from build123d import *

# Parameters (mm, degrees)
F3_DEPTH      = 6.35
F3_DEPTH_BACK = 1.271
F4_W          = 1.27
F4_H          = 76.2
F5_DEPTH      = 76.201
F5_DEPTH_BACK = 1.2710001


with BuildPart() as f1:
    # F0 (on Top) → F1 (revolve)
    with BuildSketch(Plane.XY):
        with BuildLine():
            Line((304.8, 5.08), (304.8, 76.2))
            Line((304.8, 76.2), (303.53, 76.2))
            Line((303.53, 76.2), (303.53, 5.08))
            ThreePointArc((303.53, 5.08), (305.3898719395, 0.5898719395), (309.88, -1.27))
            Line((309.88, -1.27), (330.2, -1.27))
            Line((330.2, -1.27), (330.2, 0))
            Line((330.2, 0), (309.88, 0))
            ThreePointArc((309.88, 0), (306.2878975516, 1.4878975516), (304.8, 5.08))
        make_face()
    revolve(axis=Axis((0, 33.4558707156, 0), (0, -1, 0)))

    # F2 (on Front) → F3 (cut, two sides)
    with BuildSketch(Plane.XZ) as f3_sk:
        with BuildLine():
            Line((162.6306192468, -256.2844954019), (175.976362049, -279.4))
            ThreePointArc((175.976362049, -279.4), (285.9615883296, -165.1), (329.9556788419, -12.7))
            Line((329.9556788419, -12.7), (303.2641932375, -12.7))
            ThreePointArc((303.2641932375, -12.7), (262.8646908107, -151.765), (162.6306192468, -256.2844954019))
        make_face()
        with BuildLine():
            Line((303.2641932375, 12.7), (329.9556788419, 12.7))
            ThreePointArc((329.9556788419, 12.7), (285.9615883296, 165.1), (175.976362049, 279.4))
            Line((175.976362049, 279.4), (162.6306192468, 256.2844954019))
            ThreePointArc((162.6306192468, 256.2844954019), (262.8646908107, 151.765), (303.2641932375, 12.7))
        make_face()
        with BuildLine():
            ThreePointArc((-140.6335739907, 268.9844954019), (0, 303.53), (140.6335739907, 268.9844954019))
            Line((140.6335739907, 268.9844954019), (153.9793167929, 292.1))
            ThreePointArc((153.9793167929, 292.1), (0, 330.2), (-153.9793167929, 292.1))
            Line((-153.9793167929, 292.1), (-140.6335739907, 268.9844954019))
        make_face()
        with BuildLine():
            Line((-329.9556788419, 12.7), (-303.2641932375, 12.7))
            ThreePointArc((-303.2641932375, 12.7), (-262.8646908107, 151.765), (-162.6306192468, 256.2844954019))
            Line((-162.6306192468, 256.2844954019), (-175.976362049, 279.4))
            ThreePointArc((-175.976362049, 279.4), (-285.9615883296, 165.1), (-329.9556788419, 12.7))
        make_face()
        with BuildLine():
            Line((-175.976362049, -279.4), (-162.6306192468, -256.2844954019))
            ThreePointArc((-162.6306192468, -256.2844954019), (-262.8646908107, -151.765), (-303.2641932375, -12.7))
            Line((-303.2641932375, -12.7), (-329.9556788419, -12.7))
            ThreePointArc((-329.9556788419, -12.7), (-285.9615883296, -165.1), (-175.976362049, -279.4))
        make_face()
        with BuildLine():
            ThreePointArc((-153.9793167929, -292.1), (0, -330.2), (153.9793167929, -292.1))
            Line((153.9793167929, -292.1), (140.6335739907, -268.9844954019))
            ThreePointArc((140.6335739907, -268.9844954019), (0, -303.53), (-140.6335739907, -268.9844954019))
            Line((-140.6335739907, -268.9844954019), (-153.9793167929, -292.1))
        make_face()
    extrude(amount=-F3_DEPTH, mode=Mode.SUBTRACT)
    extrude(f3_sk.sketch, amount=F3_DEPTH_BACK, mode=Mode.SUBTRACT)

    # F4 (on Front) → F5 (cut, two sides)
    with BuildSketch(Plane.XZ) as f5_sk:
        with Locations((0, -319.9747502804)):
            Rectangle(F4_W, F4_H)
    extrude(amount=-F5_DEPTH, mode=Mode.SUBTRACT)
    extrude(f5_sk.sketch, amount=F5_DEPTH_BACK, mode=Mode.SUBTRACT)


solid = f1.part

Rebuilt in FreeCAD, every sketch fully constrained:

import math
import FreeCAD as App
import Part
import Sketcher
from FreeCAD import Vector
Q = App.Units.Quantity

doc = App.newDocument("Part")
body = doc.addObject("PartDesign::Body", "Body")

sketch1 = body.newObject("Sketcher::SketchObject", "Sketch")
sketch1.AttachmentSupport = (doc.getObject("XY_Plane"), [""])
sketch1.MapMode = "FlatFace"
sketch1.addGeometry(Part.LineSegment(Vector(304.8, 5.1, 0), Vector(304.8, 76.2, 0)), False)
sketch1.addGeometry(Part.LineSegment(Vector(304.8, 76.2, 0), Vector(303.5, 76.2, 0)), False)
sketch1.addGeometry(Part.LineSegment(Vector(303.5, 76.2, 0), Vector(303.5, 5.1, 0)), False)
sketch1.addGeometry(Part.ArcOfCircle(Part.Circle(Vector(309.9, 5.1, 0), Vector(0, 0, 1), 6.3), math.radians(180), math.radians(270)), False)
sketch1.addGeometry(Part.LineSegment(Vector(309.9, -1.3, 0), Vector(330.2, -1.3, 0)), False)
sketch1.addGeometry(Part.LineSegment(Vector(330.2, -1.3, 0), Vector(330.2, 0, 0)), False)
sketch1.addGeometry(Part.LineSegment(Vector(330.2, 0, 0), Vector(309.9, 0, 0)), False)
sketch1.addGeometry(Part.ArcOfCircle(Part.Circle(Vector(309.9, 5.1, 0), Vector(0, 0, 1), 5.1), math.radians(180), math.radians(270)), False)
sketch1.addConstraint(Sketcher.Constraint("Coincident", 0, 2, 1, 1))
sketch1.addConstraint(Sketcher.Constraint("Coincident", 1, 2, 2, 1))
sketch1.addConstraint(Sketcher.Constraint("Tangent", 2, 2, 3, 1))
sketch1.addConstraint(Sketcher.Constraint("Tangent", 3, 2, 4, 1))
sketch1.addConstraint(Sketcher.Constraint("Coincident", 4, 2, 5, 1))
sketch1.addConstraint(Sketcher.Constraint("Coincident", 5, 2, 6, 1))
sketch1.addConstraint(Sketcher.Constraint("Tangent", 6, 2, 7, 2))
sketch1.addConstraint(Sketcher.Constraint("Tangent", 7, 1, 0, 1))
sketch1.addConstraint(Sketcher.Constraint("Vertical", 0))
sketch1.addConstraint(Sketcher.Constraint("Horizontal", 1))
sketch1.addConstraint(Sketcher.Constraint("Vertical", 2))
sketch1.addConstraint(Sketcher.Constraint("Horizontal", 4))
sketch1.addConstraint(Sketcher.Constraint("Vertical", 5))
sketch1.addConstraint(Sketcher.Constraint("Horizontal", 6))
sketch1.addConstraint(Sketcher.Constraint("Coincident", 7, 3, 3, 3))
sketch1.addConstraint(Sketcher.Constraint("PointOnObject", 5, 2, -1))
sketch1.addConstraint(Sketcher.Constraint("Radius", 7, Q("0.2 in")))
sketch1.addConstraint(Sketcher.Constraint("Radius", 3, Q("0.25 in")))
sketch1.addConstraint(Sketcher.Constraint("DistanceX", 4, 1, 4, 2, Q("0.8 in")))
sketch1.addConstraint(Sketcher.Constraint("DistanceY", 0, 1, 0, 2, Q("2.8 in")))
sketch1.addConstraint(Sketcher.Constraint("DistanceX", -1, 1, 0, 2, Q("12 in")))
revolution = body.newObject("PartDesign::Revolution", "Revolution")
revolution.Profile = sketch1
revolution.ReferenceAxis = (sketch1, ["V_Axis"])
revolution.Angle = 360

sketch2 = body.newObject("Sketcher::SketchObject", "Sketch001")
sketch2.AttachmentSupport = (doc.getObject("XZ_Plane"), [""])
sketch2.MapMode = "FlatFace"
sketch2.addGeometry(Part.LineSegment(Vector(163, -256, 0), Vector(176, -279, 0)), False)
sketch2.addGeometry(Part.ArcOfCircle(Part.Circle(Vector(0, 0, 0), Vector(0, 0, 1), 330), math.radians(-58), math.radians(-2)), False)
sketch2.addGeometry(Part.LineSegment(Vector(330, -13, 0), Vector(303, -13, 0)), False)
sketch2.addGeometry(Part.ArcOfCircle(Part.Circle(Vector(0, 0, 0), Vector(0, 0, 1), 304), math.radians(-58), math.radians(-2)), False)
sketch2.addGeometry(Part.LineSegment(Vector(303, 13, 0), Vector(330, 13, 0)), False)
sketch2.addGeometry(Part.ArcOfCircle(Part.Circle(Vector(0, 0, 0), Vector(0, 0, 1), 330), math.radians(2), math.radians(58)), False)
sketch2.addGeometry(Part.LineSegment(Vector(176, 279, 0), Vector(163, 256, 0)), False)
sketch2.addGeometry(Part.ArcOfCircle(Part.Circle(Vector(0, 0, 0), Vector(0, 0, 1), 304), math.radians(2), math.radians(58)), False)
sketch2.addGeometry(Part.ArcOfCircle(Part.Circle(Vector(0, 0, 0), Vector(0, 0, 1), 304), math.radians(62), math.radians(118)), False)
sketch2.addGeometry(Part.LineSegment(Vector(141, 269, 0), Vector(154, 292, 0)), False)
sketch2.addGeometry(Part.ArcOfCircle(Part.Circle(Vector(0, 0, 0), Vector(0, 0, 1), 330), math.radians(62), math.radians(118)), False)
sketch2.addGeometry(Part.LineSegment(Vector(-154, 292, 0), Vector(-141, 269, 0)), False)
sketch2.addGeometry(Part.LineSegment(Vector(-330, 13, 0), Vector(-303, 13, 0)), False)
sketch2.addGeometry(Part.ArcOfCircle(Part.Circle(Vector(0, 0, 0), Vector(0, 0, 1), 304), math.radians(122), math.radians(178)), False)
sketch2.addGeometry(Part.LineSegment(Vector(-163, 256, 0), Vector(-176, 279, 0)), False)
sketch2.addGeometry(Part.ArcOfCircle(Part.Circle(Vector(0, 0, 0), Vector(0, 0, 1), 330), math.radians(122), math.radians(178)), False)
sketch2.addGeometry(Part.LineSegment(Vector(-176, -279, 0), Vector(-163, -256, 0)), False)
sketch2.addGeometry(Part.ArcOfCircle(Part.Circle(Vector(0, 0, 0), Vector(0, 0, 1), 304), math.radians(-178), math.radians(-122)), False)
sketch2.addGeometry(Part.LineSegment(Vector(-303, -13, 0), Vector(-330, -13, 0)), False)
sketch2.addGeometry(Part.ArcOfCircle(Part.Circle(Vector(0, 0, 0), Vector(0, 0, 1), 330), math.radians(-178), math.radians(-122)), False)
sketch2.addGeometry(Part.ArcOfCircle(Part.Circle(Vector(0, 0, 0), Vector(0, 0, 1), 330), math.radians(-118), math.radians(-62)), False)
sketch2.addGeometry(Part.LineSegment(Vector(154, -292, 0), Vector(141, -269, 0)), False)
sketch2.addGeometry(Part.ArcOfCircle(Part.Circle(Vector(0, 0, 0), Vector(0, 0, 1), 304), math.radians(-118), math.radians(-62)), False)
sketch2.addGeometry(Part.LineSegment(Vector(-141, -269, 0), Vector(-154, -292, 0)), False)
sketch2.addConstraint(Sketcher.Constraint("Coincident", 0, 2, 1, 1))
sketch2.addConstraint(Sketcher.Constraint("Coincident", 1, 2, 2, 1))
sketch2.addConstraint(Sketcher.Constraint("Coincident", 2, 2, 3, 2))
sketch2.addConstraint(Sketcher.Constraint("Coincident", 3, 1, 0, 1))
sketch2.addConstraint(Sketcher.Constraint("Coincident", 4, 2, 5, 1))
sketch2.addConstraint(Sketcher.Constraint("Coincident", 5, 2, 6, 1))
sketch2.addConstraint(Sketcher.Constraint("Coincident", 6, 2, 7, 2))
sketch2.addConstraint(Sketcher.Constraint("Coincident", 7, 1, 4, 1))
sketch2.addConstraint(Sketcher.Constraint("Coincident", 8, 1, 9, 1))
sketch2.addConstraint(Sketcher.Constraint("Coincident", 9, 2, 10, 1))
sketch2.addConstraint(Sketcher.Constraint("Coincident", 10, 2, 11, 1))
sketch2.addConstraint(Sketcher.Constraint("Coincident", 11, 2, 8, 2))
sketch2.addConstraint(Sketcher.Constraint("Coincident", 12, 2, 13, 2))
sketch2.addConstraint(Sketcher.Constraint("Coincident", 13, 1, 14, 1))
sketch2.addConstraint(Sketcher.Constraint("Coincident", 14, 2, 15, 1))
sketch2.addConstraint(Sketcher.Constraint("Coincident", 15, 2, 12, 1))
sketch2.addConstraint(Sketcher.Constraint("Coincident", 16, 2, 17, 2))
sketch2.addConstraint(Sketcher.Constraint("Coincident", 17, 1, 18, 1))
sketch2.addConstraint(Sketcher.Constraint("Coincident", 18, 2, 19, 1))
sketch2.addConstraint(Sketcher.Constraint("Coincident", 19, 2, 16, 1))
sketch2.addConstraint(Sketcher.Constraint("Coincident", 20, 2, 21, 1))
sketch2.addConstraint(Sketcher.Constraint("Coincident", 21, 2, 22, 2))
sketch2.addConstraint(Sketcher.Constraint("Coincident", 22, 1, 23, 1))
sketch2.addConstraint(Sketcher.Constraint("Coincident", 23, 2, 20, 1))
sketch2.addConstraint(Sketcher.Constraint("Horizontal", 2))
sketch2.addConstraint(Sketcher.Constraint("Horizontal", 4))
sketch2.addConstraint(Sketcher.Constraint("Horizontal", 12))
sketch2.addConstraint(Sketcher.Constraint("Horizontal", 18))
sketch2.addConstraint(Sketcher.Constraint("Coincident", 1, 3, -1, 1))
sketch2.addConstraint(Sketcher.Constraint("Coincident", 3, 3, -1, 1))
sketch2.addConstraint(Sketcher.Constraint("Coincident", 5, 3, -1, 1))
sketch2.addConstraint(Sketcher.Constraint("Coincident", 7, 3, -1, 1))
sketch2.addConstraint(Sketcher.Constraint("Coincident", 8, 3, -1, 1))
sketch2.addConstraint(Sketcher.Constraint("Coincident", 10, 3, -1, 1))
sketch2.addConstraint(Sketcher.Constraint("Coincident", 13, 3, -1, 1))
sketch2.addConstraint(Sketcher.Constraint("Coincident", 15, 3, -1, 1))
sketch2.addConstraint(Sketcher.Constraint("Coincident", 17, 3, -1, 1))
sketch2.addConstraint(Sketcher.Constraint("Coincident", 19, 3, -1, 1))
sketch2.addConstraint(Sketcher.Constraint("Coincident", 20, 3, -1, 1))
sketch2.addConstraint(Sketcher.Constraint("Coincident", 22, 3, -1, 1))
sketch2.addConstraint(Sketcher.Constraint("Equal", 1, 5))
sketch2.addConstraint(Sketcher.Constraint("Equal", 3, 7))
sketch2.addConstraint(Sketcher.Constraint("Equal", 7, 8))
sketch2.addConstraint(Sketcher.Constraint("Equal", 5, 10))
sketch2.addConstraint(Sketcher.Constraint("Equal", 8, 13))
sketch2.addConstraint(Sketcher.Constraint("Equal", 10, 15))
sketch2.addConstraint(Sketcher.Constraint("Equal", 13, 17))
sketch2.addConstraint(Sketcher.Constraint("Equal", 15, 19))
sketch2.addConstraint(Sketcher.Constraint("Equal", 19, 20))
sketch2.addConstraint(Sketcher.Constraint("Equal", 17, 22))
sketch2.addConstraint(Sketcher.Constraint("Parallel", 6, 9))
sketch2.addConstraint(Sketcher.Constraint("Parallel", 0, 11))
sketch2.addConstraint(Sketcher.Constraint("Parallel", 11, 14))
sketch2.addConstraint(Sketcher.Constraint("Parallel", 9, 16))
sketch2.addConstraint(Sketcher.Constraint("Parallel", 14, 21))
sketch2.addConstraint(Sketcher.Constraint("Parallel", 16, 23))
sketch2.addConstraint(Sketcher.Constraint("Horizontal", 9, 2, 10, 2))
sketch2.addConstraint(Sketcher.Constraint("Horizontal", 8, 1, 11, 2))
sketch2.addConstraint(Sketcher.Constraint("Horizontal", 7, 1, 12, 2))
sketch2.addConstraint(Sketcher.Constraint("Horizontal", 6, 2, 13, 1))
sketch2.addConstraint(Sketcher.Constraint("Horizontal", 3, 1, 16, 2))
sketch2.addConstraint(Sketcher.Constraint("Horizontal", 2, 2, 17, 1))
sketch2.addConstraint(Sketcher.Constraint("Horizontal", 21, 2, 22, 1))
sketch2.addConstraint(Sketcher.Constraint("Vertical", 1, 2, 4, 2))
sketch2.addConstraint(Sketcher.Constraint("Vertical", 0, 2, 5, 2))
sketch2.addConstraint(Sketcher.Constraint("Vertical", 9, 2, 20, 2))
sketch2.addConstraint(Sketcher.Constraint("Equal", 6, 9))
sketch2.addConstraint(Sketcher.Constraint("Radius", 1, Q("13 in")))
sketch2.addConstraint(Sketcher.Constraint("Radius", 3, Q("11.95 in")))
sketch2.addConstraint(Sketcher.Constraint("DistanceY", 0, 2, -1, 1, Q("11 in")))
sketch2.addConstraint(Sketcher.Constraint("Angle", 0, Q("-60 deg")))
sketch2.addConstraint(Sketcher.Constraint("DistanceY", 1, 2, 4, 2, Q("1 in")))
pocket1 = body.newObject("PartDesign::Pocket", "Pocket")
pocket1.Profile = sketch2
pocket1.Type = "TwoLengths"
pocket1.Length = Q("0.25 in")
pocket1.Length2 = 1.271

sketch3 = body.newObject("Sketcher::SketchObject", "Sketch002")
sketch3.AttachmentSupport = (doc.getObject("XZ_Plane"), [""])
sketch3.MapMode = "FlatFace"
sketch3.addGeometry(Part.LineSegment(Vector(-0.6, -281.9, 0), Vector(-0.6, -358.1, 0)), False)
sketch3.addGeometry(Part.LineSegment(Vector(-0.6, -358.1, 0), Vector(0.6, -358.1, 0)), False)
sketch3.addGeometry(Part.LineSegment(Vector(0.6, -358.1, 0), Vector(0.6, -281.9, 0)), False)
sketch3.addGeometry(Part.LineSegment(Vector(0.6, -281.9, 0), Vector(-0.6, -281.9, 0)), False)
sketch3.addConstraint(Sketcher.Constraint("Coincident", 0, 2, 1, 1))
sketch3.addConstraint(Sketcher.Constraint("Coincident", 1, 2, 2, 1))
sketch3.addConstraint(Sketcher.Constraint("Coincident", 2, 2, 3, 1))
sketch3.addConstraint(Sketcher.Constraint("Coincident", 3, 2, 0, 1))
sketch3.addConstraint(Sketcher.Constraint("Vertical", 0))
sketch3.addConstraint(Sketcher.Constraint("Horizontal", 1))
sketch3.addConstraint(Sketcher.Constraint("Vertical", 2))
sketch3.addConstraint(Sketcher.Constraint("Horizontal", 3))
sketch3.addConstraint(Sketcher.Constraint("DistanceY", 0, 2, 0, 1, Q("3 in")))
sketch3.addConstraint(Sketcher.Constraint("DistanceX", 1, 1, 1, 2, Q("0.05 in")))
sketch3.addConstraint(Sketcher.Constraint("DistanceX", 0, 2, -1, 1, Q("0.025 in")))
sketch3.addConstraint(Sketcher.Constraint("DistanceY", 0, 2, -1, 1, Q("358.07475 mm")))
pocket2 = body.newObject("PartDesign::Pocket", "Pocket001")
pocket2.Profile = sketch3
pocket2.Type = "ThroughAll"
pocket2.Midplane = True

doc.recompute()
